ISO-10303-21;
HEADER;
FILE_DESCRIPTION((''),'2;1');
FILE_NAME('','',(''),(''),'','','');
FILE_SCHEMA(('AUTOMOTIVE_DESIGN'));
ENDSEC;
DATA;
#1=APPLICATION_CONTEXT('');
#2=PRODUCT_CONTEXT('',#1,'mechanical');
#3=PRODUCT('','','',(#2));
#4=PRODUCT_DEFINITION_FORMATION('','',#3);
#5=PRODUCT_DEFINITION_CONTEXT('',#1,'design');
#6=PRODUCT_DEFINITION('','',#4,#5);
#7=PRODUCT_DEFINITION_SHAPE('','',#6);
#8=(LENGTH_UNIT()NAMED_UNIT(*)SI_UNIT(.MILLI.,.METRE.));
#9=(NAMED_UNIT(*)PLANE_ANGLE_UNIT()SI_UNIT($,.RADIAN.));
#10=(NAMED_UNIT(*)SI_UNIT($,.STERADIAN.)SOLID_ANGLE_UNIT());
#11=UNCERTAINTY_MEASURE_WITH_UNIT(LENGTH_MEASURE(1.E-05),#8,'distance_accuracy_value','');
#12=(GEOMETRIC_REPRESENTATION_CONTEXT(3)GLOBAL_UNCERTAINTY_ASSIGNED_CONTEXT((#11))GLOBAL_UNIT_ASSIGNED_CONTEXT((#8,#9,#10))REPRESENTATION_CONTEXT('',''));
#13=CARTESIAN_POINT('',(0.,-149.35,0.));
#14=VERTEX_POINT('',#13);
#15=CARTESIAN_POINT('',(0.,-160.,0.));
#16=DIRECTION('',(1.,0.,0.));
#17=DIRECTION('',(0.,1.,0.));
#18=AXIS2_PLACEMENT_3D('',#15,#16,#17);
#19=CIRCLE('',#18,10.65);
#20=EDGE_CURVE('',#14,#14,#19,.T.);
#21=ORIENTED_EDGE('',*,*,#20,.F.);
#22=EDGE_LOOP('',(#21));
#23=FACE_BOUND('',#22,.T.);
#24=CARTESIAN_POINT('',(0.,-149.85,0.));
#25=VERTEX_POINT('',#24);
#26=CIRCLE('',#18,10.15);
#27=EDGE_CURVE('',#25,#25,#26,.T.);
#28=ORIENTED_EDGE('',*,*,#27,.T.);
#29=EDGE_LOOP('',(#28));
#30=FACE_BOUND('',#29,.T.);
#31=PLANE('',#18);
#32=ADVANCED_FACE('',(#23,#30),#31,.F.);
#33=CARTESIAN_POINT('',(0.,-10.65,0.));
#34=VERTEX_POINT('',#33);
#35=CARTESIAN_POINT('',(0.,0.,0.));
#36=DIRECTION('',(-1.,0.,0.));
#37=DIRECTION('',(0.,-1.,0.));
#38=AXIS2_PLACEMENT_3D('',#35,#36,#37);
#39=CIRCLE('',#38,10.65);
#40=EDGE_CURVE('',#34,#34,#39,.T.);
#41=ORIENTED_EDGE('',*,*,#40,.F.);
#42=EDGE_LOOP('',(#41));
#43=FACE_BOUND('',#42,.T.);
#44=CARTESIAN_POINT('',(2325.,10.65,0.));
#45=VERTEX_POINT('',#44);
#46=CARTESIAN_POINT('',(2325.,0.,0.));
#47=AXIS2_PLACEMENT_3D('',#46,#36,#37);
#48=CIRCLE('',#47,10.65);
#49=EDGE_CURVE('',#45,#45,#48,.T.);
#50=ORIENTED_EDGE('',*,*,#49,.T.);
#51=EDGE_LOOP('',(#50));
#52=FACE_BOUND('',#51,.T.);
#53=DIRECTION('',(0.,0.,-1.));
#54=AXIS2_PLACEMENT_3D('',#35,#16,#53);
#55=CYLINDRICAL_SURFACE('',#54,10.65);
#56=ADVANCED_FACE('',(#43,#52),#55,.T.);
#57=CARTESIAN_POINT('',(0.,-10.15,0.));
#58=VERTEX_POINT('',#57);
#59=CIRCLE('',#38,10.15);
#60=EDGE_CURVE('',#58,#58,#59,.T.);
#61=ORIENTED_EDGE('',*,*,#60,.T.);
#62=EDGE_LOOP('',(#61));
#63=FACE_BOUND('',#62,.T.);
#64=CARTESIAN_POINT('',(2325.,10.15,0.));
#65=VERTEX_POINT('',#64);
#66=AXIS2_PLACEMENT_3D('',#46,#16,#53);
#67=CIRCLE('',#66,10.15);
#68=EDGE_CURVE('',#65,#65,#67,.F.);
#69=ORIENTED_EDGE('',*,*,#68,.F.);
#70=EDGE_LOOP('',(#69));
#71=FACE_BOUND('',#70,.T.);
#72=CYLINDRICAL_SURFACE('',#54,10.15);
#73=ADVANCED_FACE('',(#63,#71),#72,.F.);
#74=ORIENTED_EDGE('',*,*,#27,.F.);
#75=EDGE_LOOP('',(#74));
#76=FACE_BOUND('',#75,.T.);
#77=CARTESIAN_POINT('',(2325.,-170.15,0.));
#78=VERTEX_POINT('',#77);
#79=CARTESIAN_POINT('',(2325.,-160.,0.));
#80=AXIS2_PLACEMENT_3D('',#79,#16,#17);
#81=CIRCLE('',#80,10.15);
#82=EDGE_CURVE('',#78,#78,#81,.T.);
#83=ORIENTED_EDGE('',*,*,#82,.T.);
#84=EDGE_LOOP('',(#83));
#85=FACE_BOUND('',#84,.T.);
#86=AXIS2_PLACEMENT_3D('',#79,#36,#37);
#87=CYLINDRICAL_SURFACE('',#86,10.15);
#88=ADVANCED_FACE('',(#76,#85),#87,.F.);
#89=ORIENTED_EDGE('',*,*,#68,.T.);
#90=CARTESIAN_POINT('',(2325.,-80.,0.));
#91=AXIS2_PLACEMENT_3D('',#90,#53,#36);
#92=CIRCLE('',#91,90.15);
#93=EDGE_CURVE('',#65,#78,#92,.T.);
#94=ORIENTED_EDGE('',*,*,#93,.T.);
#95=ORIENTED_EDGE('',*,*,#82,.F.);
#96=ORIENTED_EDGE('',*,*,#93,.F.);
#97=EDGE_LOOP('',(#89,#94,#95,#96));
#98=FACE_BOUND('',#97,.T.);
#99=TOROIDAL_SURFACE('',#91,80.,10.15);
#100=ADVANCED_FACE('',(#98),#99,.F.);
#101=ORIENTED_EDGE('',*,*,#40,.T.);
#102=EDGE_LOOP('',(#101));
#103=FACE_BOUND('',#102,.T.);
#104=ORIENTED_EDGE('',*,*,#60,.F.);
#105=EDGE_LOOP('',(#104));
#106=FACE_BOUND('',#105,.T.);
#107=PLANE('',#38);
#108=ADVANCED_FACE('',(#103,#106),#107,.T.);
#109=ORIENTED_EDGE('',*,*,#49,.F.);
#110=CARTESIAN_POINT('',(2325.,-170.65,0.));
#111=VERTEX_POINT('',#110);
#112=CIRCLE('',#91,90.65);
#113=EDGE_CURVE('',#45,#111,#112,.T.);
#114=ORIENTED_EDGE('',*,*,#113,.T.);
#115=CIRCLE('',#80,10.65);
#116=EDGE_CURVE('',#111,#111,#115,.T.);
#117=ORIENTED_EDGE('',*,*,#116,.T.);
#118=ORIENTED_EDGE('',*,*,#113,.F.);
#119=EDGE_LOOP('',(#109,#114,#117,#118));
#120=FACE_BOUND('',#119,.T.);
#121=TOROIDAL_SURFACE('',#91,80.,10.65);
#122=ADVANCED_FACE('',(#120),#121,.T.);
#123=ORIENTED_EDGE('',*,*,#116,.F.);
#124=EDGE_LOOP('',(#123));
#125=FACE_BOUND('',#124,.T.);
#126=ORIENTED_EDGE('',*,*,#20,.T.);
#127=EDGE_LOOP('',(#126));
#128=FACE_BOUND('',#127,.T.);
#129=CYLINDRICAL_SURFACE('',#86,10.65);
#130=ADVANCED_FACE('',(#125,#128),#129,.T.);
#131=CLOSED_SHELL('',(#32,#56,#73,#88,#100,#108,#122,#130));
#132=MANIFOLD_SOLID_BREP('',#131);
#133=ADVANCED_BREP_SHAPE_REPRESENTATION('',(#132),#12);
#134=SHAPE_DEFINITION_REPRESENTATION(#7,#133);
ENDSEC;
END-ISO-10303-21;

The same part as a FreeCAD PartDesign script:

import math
import FreeCAD as App
import Part
import Sketcher

doc = App.newDocument("Part")
body = doc.addObject("PartDesign::Body", "Body")

# Sketch on YZ plane
sketch1 = body.newObject("Sketcher::SketchObject", "Sketch")
sketch1.AttachmentSupport = (doc.getObject("YZ_Plane"), [""])
sketch1.MapMode = "FlatFace"
sketch1.addGeometry([
    Part.Circle(App.Vector(0, 0, 0), App.Vector(0, 0, 1), 11),
    Part.Circle(App.Vector(0, 0, 0), App.Vector(0, 0, 1), 10),
], False)
sketch1.addConstraint([
    Sketcher.Constraint("Coincident", 0, 3, -1, 1),
    Sketcher.Constraint("Coincident", 1, 3, -1, 1),
    Sketcher.Constraint("Diameter", 0, 21.3),
    Sketcher.Constraint("Diameter", 1, 20.3),
])

# Sketch on XY plane
sketch2 = body.newObject("Sketcher::SketchObject", "Sketch001")
sketch2.AttachmentSupport = (doc.getObject("XY_Plane"), [""])
sketch2.MapMode = "FlatFace"
sketch2.addGeometry([
    Part.LineSegment(App.Vector(0, 0, 0), App.Vector(2325, 0, 0)),
    Part.ArcOfCircle(Part.Circle(App.Vector(2325, -80, 0), App.Vector(0, 0, 1), 80), math.radians(-90), math.radians(90)),
    Part.LineSegment(App.Vector(2325, -160, 0), App.Vector(0, -160, 0)),
], False)
sketch2.addConstraint([
    Sketcher.Constraint("Tangent", 0, 2, 1, 2),
    Sketcher.Constraint("Tangent", 1, 1, 2, 1),
    Sketcher.Constraint("Horizontal", 0),
    Sketcher.Constraint("Horizontal", 2),
    Sketcher.Constraint("Coincident", 0, 1, -1, 1),
    Sketcher.Constraint("PointOnObject", 2, 2, -2),
    Sketcher.Constraint("Radius", 1, 80.0),
    Sketcher.Constraint("DistanceX", 0, 1, 0, 2, 2325.0),
])
doc.recompute()

additivepipe = body.newObject("PartDesign::AdditivePipe", "AdditivePipe")
additivepipe.Profile = sketch1
additivepipe.Spine = (sketch2, ["Edge1", "Edge2", "Edge3"])

doc.recompute()
